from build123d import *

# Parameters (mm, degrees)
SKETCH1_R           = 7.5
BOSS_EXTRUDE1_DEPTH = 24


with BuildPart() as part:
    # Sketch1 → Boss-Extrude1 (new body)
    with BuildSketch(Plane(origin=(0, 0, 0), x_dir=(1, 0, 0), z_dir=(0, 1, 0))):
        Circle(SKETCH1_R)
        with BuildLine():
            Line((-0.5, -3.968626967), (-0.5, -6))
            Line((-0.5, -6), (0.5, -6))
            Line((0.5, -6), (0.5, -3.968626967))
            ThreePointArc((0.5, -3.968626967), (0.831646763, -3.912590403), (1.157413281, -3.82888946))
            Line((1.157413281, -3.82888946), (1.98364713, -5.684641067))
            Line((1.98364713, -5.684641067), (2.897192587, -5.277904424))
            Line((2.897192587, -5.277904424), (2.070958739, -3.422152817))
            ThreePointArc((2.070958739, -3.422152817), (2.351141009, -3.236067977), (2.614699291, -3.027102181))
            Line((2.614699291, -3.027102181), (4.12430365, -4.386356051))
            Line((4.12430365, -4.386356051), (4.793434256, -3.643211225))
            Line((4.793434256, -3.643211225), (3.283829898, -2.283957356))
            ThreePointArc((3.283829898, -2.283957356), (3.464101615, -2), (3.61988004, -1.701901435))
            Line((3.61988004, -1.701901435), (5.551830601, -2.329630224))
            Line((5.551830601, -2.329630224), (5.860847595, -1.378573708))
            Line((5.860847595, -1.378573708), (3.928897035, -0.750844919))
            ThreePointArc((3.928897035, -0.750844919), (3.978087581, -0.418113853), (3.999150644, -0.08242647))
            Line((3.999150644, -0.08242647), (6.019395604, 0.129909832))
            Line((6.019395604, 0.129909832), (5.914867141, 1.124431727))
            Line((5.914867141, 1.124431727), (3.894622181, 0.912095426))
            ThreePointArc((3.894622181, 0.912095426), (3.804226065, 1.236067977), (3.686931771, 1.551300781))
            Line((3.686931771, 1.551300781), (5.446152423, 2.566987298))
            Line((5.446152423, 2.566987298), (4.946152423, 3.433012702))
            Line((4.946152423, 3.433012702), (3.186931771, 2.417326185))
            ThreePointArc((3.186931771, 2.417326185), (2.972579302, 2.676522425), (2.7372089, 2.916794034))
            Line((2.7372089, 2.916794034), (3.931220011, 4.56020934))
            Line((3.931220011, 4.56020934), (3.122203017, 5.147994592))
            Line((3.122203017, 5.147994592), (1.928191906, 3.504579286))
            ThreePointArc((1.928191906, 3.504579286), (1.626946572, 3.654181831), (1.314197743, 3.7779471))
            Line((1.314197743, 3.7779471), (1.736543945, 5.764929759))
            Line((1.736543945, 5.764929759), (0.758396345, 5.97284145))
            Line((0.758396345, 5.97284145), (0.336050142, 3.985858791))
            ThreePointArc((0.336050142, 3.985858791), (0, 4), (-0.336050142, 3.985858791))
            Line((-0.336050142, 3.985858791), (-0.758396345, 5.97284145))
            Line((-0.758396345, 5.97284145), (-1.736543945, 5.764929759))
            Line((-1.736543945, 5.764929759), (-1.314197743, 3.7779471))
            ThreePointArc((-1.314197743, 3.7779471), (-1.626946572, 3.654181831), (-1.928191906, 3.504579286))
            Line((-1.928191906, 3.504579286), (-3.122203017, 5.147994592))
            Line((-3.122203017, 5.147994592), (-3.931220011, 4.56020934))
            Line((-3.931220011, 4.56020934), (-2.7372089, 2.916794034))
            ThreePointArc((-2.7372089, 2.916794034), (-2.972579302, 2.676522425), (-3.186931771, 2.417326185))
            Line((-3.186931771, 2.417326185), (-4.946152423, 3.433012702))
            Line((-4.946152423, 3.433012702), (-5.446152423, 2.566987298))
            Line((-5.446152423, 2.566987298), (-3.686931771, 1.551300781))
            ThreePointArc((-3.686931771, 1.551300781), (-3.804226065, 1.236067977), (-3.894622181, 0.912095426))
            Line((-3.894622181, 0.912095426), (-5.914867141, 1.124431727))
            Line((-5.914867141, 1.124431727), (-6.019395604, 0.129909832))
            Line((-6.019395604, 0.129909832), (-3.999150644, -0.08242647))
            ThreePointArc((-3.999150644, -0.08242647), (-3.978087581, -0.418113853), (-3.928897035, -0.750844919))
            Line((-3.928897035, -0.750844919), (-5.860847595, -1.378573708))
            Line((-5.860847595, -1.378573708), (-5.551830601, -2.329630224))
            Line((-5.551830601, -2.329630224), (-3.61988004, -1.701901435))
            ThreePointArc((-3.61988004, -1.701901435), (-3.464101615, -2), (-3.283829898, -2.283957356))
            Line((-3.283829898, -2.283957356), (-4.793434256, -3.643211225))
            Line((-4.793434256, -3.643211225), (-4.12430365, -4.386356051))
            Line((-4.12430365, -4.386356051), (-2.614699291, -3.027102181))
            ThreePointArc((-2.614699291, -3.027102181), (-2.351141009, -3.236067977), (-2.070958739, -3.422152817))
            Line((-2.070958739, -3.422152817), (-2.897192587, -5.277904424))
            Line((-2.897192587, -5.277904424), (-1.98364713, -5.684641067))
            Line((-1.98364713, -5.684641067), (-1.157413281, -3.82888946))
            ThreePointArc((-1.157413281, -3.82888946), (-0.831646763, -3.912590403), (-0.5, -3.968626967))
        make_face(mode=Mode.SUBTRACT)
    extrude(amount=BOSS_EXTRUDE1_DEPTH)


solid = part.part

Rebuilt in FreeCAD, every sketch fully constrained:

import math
import FreeCAD as App
import Part
import Sketcher
Q = App.Units.Quantity

doc = App.newDocument("Part")
body = doc.addObject("PartDesign::Body", "Body")

# Sketch on XZ plane
sketch1 = body.newObject("Sketcher::SketchObject", "Sketch")
sketch1.AttachmentSupport = (doc.getObject("XZ_Plane"), [""])
sketch1.MapMode = "FlatFace"
sketch1.addGeometry(Part.Circle(App.Vector(0, 0, 0), App.Vector(0, 0, 1), 7.5), False)
sketch1.addGeometry(Part.LineSegment(App.Vector(-0.5, 6, 0), App.Vector(-0.5, 4, 0)), False)
sketch1.addGeometry(Part.ArcOfCircle(Part.Circle(App.Vector(0, 0, 0), App.Vector(0, 0, 1), 4), math.radians(97.18), math.radians(106.82)), False)
sketch1.addGeometry(Part.LineSegment(App.Vector(-1.2, 3.8, 0), App.Vector(-2, 5.7, 0)), False)
sketch1.addGeometry(Part.LineSegment(App.Vector(-2, 5.7, 0), App.Vector(-2.9, 5.3, 0)), False)
sketch1.addGeometry(Part.LineSegment(App.Vector(-2.9, 5.3, 0), App.Vector(-2.1, 3.4, 0)), False)
sketch1.addGeometry(Part.ArcOfCircle(Part.Circle(App.Vector(0, 0, 0), App.Vector(0, 0, 1), 4), math.radians(121.18), math.radians(130.82)), False)
sketch1.addGeometry(Part.LineSegment(App.Vector(-2.6, 3, 0), App.Vector(-4.1, 4.4, 0)), False)
sketch1.addGeometry(Part.LineSegment(App.Vector(-4.1, 4.4, 0), App.Vector(-4.8, 3.6, 0)), False)
sketch1.addGeometry(Part.LineSegment(App.Vector(-4.8, 3.6, 0), App.Vector(-3.3, 2.3, 0)), False)
sketch1.addGeometry(Part.ArcOfCircle(Part.Circle(App.Vector(0, 0, 0), App.Vector(0, 0, 1), 4), math.radians(145.18), math.radians(154.82)), False)
sketch1.addGeometry(Part.LineSegment(App.Vector(-3.6, 1.7, 0), App.Vector(-5.6, 2.3, 0)), False)
sketch1.addGeometry(Part.LineSegment(App.Vector(-5.6, 2.3, 0), App.Vector(-5.9, 1.4, 0)), False)
sketch1.addGeometry(Part.LineSegment(App.Vector(-5.9, 1.4, 0), App.Vector(-3.9, 0.8, 0)), False)
sketch1.addGeometry(Part.ArcOfCircle(Part.Circle(App.Vector(0, 0, 0), App.Vector(0, 0, 1), 4), math.radians(169.18), math.radians(178.82)), False)
sketch1.addGeometry(Part.LineSegment(App.Vector(-4, 0.1, 0), App.Vector(-6, -0.1, 0)), False)
sketch1.addGeometry(Part.LineSegment(App.Vector(-6, -0.1, 0), App.Vector(-5.9, -1.1, 0)), False)
sketch1.addGeometry(Part.LineSegment(App.Vector(-5.9, -1.1, 0), App.Vector(-3.9, -0.9, 0)), False)
sketch1.addGeometry(Part.ArcOfCircle(Part.Circle(App.Vector(0, 0, 0), App.Vector(0, 0, 1), 4), math.radians(-166.82), math.radians(-157.18)), False)
sketch1.addGeometry(Part.LineSegment(App.Vector(-3.7, -1.6, 0), App.Vector(-5.4, -2.6, 0)), False)
sketch1.addGeometry(Part.LineSegment(App.Vector(-5.4, -2.6, 0), App.Vector(-4.9, -3.4, 0)), False)
sketch1.addGeometry(Part.LineSegment(App.Vector(-4.9, -3.4, 0), App.Vector(-3.2, -2.4, 0)), False)
sketch1.addGeometry(Part.ArcOfCircle(Part.Circle(App.Vector(0, 0, 0), App.Vector(0, 0, 1), 4), math.radians(-142.82), math.radians(-133.18)), False)
sketch1.addGeometry(Part.LineSegment(App.Vector(-2.7, -2.9, 0), App.Vector(-3.9, -4.6, 0)), False)
sketch1.addGeometry(Part.LineSegment(App.Vector(-3.9, -4.6, 0), App.Vector(-3.1, -5.1, 0)), False)
sketch1.addGeometry(Part.LineSegment(App.Vector(-3.1, -5.1, 0), App.Vector(-1.9, -3.5, 0)), False)
sketch1.addGeometry(Part.ArcOfCircle(Part.Circle(App.Vector(0, 0, 0), App.Vector(0, 0, 1), 4), math.radians(-118.82), math.radians(-109.18)), False)
sketch1.addGeometry(Part.LineSegment(App.Vector(-1.3, -3.8, 0), App.Vector(-1.7, -5.8, 0)), False)
sketch1.addGeometry(Part.LineSegment(App.Vector(-1.7, -5.8, 0), App.Vector(-0.8, -6, 0)), False)
sketch1.addGeometry(Part.LineSegment(App.Vector(-0.8, -6, 0), App.Vector(-0.3, -4, 0)), False)
sketch1.addGeometry(Part.ArcOfCircle(Part.Circle(App.Vector(0, 0, 0), App.Vector(0, 0, 1), 4), math.radians(-94.82), math.radians(-85.18)), False)
sketch1.addGeometry(Part.LineSegment(App.Vector(0.3, -4, 0), App.Vector(0.8, -6, 0)), False)
sketch1.addGeometry(Part.LineSegment(App.Vector(0.8, -6, 0), App.Vector(1.7, -5.8, 0)), False)
sketch1.addGeometry(Part.LineSegment(App.Vector(1.7, -5.8, 0), App.Vector(1.3, -3.8, 0)), False)
sketch1.addGeometry(Part.ArcOfCircle(Part.Circle(App.Vector(0, 0, 0), App.Vector(0, 0, 1), 4), math.radians(-70.82), math.radians(-61.18)), False)
sketch1.addGeometry(Part.LineSegment(App.Vector(1.9, -3.5, 0), App.Vector(3.1, -5.1, 0)), False)
sketch1.addGeometry(Part.LineSegment(App.Vector(3.1, -5.1, 0), App.Vector(3.9, -4.6, 0)), False)
sketch1.addGeometry(Part.LineSegment(App.Vector(3.9, -4.6, 0), App.Vector(2.7, -2.9, 0)), False)
sketch1.addGeometry(Part.ArcOfCircle(Part.Circle(App.Vector(0, 0, 0), App.Vector(0, 0, 1), 4), math.radians(-46.82), math.radians(-37.18)), False)
sketch1.addGeometry(Part.LineSegment(App.Vector(3.2, -2.4, 0), App.Vector(4.9, -3.4, 0)), False)
sketch1.addGeometry(Part.LineSegment(App.Vector(4.9, -3.4, 0), App.Vector(5.4, -2.6, 0)), False)
sketch1.addGeometry(Part.LineSegment(App.Vector(5.4, -2.6, 0), App.Vector(3.7, -1.6, 0)), False)
sketch1.addGeometry(Part.ArcOfCircle(Part.Circle(App.Vector(0, 0, 0), App.Vector(0, 0, 1), 4), math.radians(-22.82), math.radians(-13.18)), False)
sketch1.addGeometry(Part.LineSegment(App.Vector(3.9, -0.9, 0), App.Vector(5.9, -1.1, 0)), False)
sketch1.addGeometry(Part.LineSegment(App.Vector(5.9, -1.1, 0), App.Vector(6, -0.1, 0)), False)
sketch1.addGeometry(Part.LineSegment(App.Vector(6, -0.1, 0), App.Vector(4, 0.1, 0)), False)
sketch1.addGeometry(Part.ArcOfCircle(Part.Circle(App.Vector(0, 0, 0), App.Vector(0, 0, 1), 4), math.radians(1.18), math.radians(10.82)), False)
sketch1.addGeometry(Part.LineSegment(App.Vector(3.9, 0.8, 0), App.Vector(5.9, 1.4, 0)), False)
sketch1.addGeometry(Part.LineSegment(App.Vector(5.9, 1.4, 0), App.Vector(5.6, 2.3, 0)), False)
sketch1.addGeometry(Part.LineSegment(App.Vector(5.6, 2.3, 0), App.Vector(3.6, 1.7, 0)), False)
sketch1.addGeometry(Part.ArcOfCircle(Part.Circle(App.Vector(0, 0, 0), App.Vector(0, 0, 1), 4), math.radians(25.18), math.radians(34.82)), False)
sketch1.addGeometry(Part.LineSegment(App.Vector(3.3, 2.3, 0), App.Vector(4.8, 3.6, 0)), False)
sketch1.addGeometry(Part.LineSegment(App.Vector(4.8, 3.6, 0), App.Vector(4.1, 4.4, 0)), False)
sketch1.addGeometry(Part.LineSegment(App.Vector(4.1, 4.4, 0), App.Vector(2.6, 3, 0)), False)
sketch1.addGeometry(Part.ArcOfCircle(Part.Circle(App.Vector(0, 0, 0), App.Vector(0, 0, 1), 4), math.radians(49.18), math.radians(58.82)), False)
sketch1.addGeometry(Part.LineSegment(App.Vector(2.1, 3.4, 0), App.Vector(2.9, 5.3, 0)), False)
sketch1.addGeometry(Part.LineSegment(App.Vector(2.9, 5.3, 0), App.Vector(2, 5.7, 0)), False)
sketch1.addGeometry(Part.LineSegment(App.Vector(2, 5.7, 0), App.Vector(1.2, 3.8, 0)), False)
sketch1.addGeometry(Part.ArcOfCircle(Part.Circle(App.Vector(0, 0, 0), App.Vector(0, 0, 1), 4), math.radians(73.18), math.radians(82.82)), False)
sketch1.addGeometry(Part.LineSegment(App.Vector(0.5, 4, 0), App.Vector(0.5, 6, 0)), False)
sketch1.addGeometry(Part.LineSegment(App.Vector(0.5, 6, 0), App.Vector(-0.5, 6, 0)), False)
sketch1.addConstraint(Sketcher.Constraint("Coincident", 1, 2, 2, 1))
sketch1.addConstraint(Sketcher.Constraint("Coincident", 2, 2, 3, 1))
sketch1.addConstraint(Sketcher.Constraint("Coincident", 3, 2, 4, 1))
sketch1.addConstraint(Sketcher.Constraint("Coincident", 4, 2, 5, 1))
sketch1.addConstraint(Sketcher.Constraint("Coincident", 5, 2, 6, 1))
sketch1.addConstraint(Sketcher.Constraint("Coincident", 6, 2, 7, 1))
sketch1.addConstraint(Sketcher.Constraint("Coincident", 7, 2, 8, 1))
sketch1.addConstraint(Sketcher.Constraint("Coincident", 8, 2, 9, 1))
sketch1.addConstraint(Sketcher.Constraint("Coincident", 9, 2, 10, 1))
sketch1.addConstraint(Sketcher.Constraint("Coincident", 10, 2, 11, 1))
sketch1.addConstraint(Sketcher.Constraint("Coincident", 11, 2, 12, 1))
sketch1.addConstraint(Sketcher.Constraint("Coincident", 12, 2, 13, 1))
sketch1.addConstraint(Sketcher.Constraint("Coincident", 13, 2, 14, 1))
sketch1.addConstraint(Sketcher.Constraint("Coincident", 14, 2, 15, 1))
sketch1.addConstraint(Sketcher.Constraint("Coincident", 15, 2, 16, 1))
sketch1.addConstraint(Sketcher.Constraint("Coincident", 16, 2, 17, 1))
sketch1.addConstraint(Sketcher.Constraint("Coincident", 17, 2, 18, 1))
sketch1.addConstraint(Sketcher.Constraint("Coincident", 18, 2, 19, 1))
sketch1.addConstraint(Sketcher.Constraint("Coincident", 19, 2, 20, 1))
sketch1.addConstraint(Sketcher.Constraint("Coincident", 20, 2, 21, 1))
sketch1.addConstraint(Sketcher.Constraint("Coincident", 21, 2, 22, 1))
sketch1.addConstraint(Sketcher.Constraint("Coincident", 22, 2, 23, 1))
sketch1.addConstraint(Sketcher.Constraint("Coincident", 23, 2, 24, 1))
sketch1.addConstraint(Sketcher.Constraint("Coincident", 24, 2, 25, 1))
sketch1.addConstraint(Sketcher.Constraint("Coincident", 25, 2, 26, 1))
sketch1.addConstraint(Sketcher.Constraint("Coincident", 26, 2, 27, 1))
sketch1.addConstraint(Sketcher.Constraint("Coincident", 27, 2, 28, 1))
sketch1.addConstraint(Sketcher.Constraint("Coincident", 28, 2, 29, 1))
sketch1.addConstraint(Sketcher.Constraint("Coincident", 29, 2, 30, 1))
sketch1.addConstraint(Sketcher.Constraint("Coincident", 30, 2, 31, 1))
sketch1.addConstraint(Sketcher.Constraint("Coincident", 31, 2, 32, 1))
sketch1.addConstraint(Sketcher.Constraint("Coincident", 32, 2, 33, 1))
sketch1.addConstraint(Sketcher.Constraint("Coincident", 33, 2, 34, 1))
sketch1.addConstraint(Sketcher.Constraint("Coincident", 34, 2, 35, 1))
sketch1.addConstraint(Sketcher.Constraint("Coincident", 35, 2, 36, 1))
sketch1.addConstraint(Sketcher.Constraint("Coincident", 36, 2, 37, 1))
sketch1.addConstraint(Sketcher.Constraint("Coincident", 37, 2, 38, 1))
sketch1.addConstraint(Sketcher.Constraint("Coincident", 38, 2, 39, 1))
sketch1.addConstraint(Sketcher.Constraint("Coincident", 39, 2, 40, 1))
sketch1.addConstraint(Sketcher.Constraint("Coincident", 40, 2, 41, 1))
sketch1.addConstraint(Sketcher.Constraint("Coincident", 41, 2, 42, 1))
sketch1.addConstraint(Sketcher.Constraint("Coincident", 42, 2, 43, 1))
sketch1.addConstraint(Sketcher.Constraint("Coincident", 43, 2, 44, 1))
sketch1.addConstraint(Sketcher.Constraint("Coincident", 44, 2, 45, 1))
sketch1.addConstraint(Sketcher.Constraint("Coincident", 45, 2, 46, 1))
sketch1.addConstraint(Sketcher.Constraint("Coincident", 46, 2, 47, 1))
sketch1.addConstraint(Sketcher.Constraint("Coincident", 47, 2, 48, 1))
sketch1.addConstraint(Sketcher.Constraint("Coincident", 48, 2, 49, 1))
sketch1.addConstraint(Sketcher.Constraint("Coincident", 49, 2, 50, 1))
sketch1.addConstraint(Sketcher.Constraint("Coincident", 50, 2, 51, 1))
sketch1.addConstraint(Sketcher.Constraint("Coincident", 51, 2, 52, 1))
sketch1.addConstraint(Sketcher.Constraint("Coincident", 52, 2, 53, 1))
sketch1.addConstraint(Sketcher.Constraint("Coincident", 53, 2, 54, 1))
sketch1.addConstraint(Sketcher.Constraint("Coincident", 54, 2, 55, 1))
sketch1.addConstraint(Sketcher.Constraint("Coincident", 55, 2, 56, 1))
sketch1.addConstraint(Sketcher.Constraint("Coincident", 56, 2, 57, 1))
sketch1.addConstraint(Sketcher.Constraint("Coincident", 57, 2, 58, 1))
sketch1.addConstraint(Sketcher.Constraint("Coincident", 58, 2, 59, 1))
sketch1.addConstraint(Sketcher.Constraint("Coincident", 59, 2, 60, 1))
sketch1.addConstraint(Sketcher.Constraint("Coincident", 60, 2, 1, 1))
sketch1.addConstraint(Sketcher.Constraint("Vertical", 1))
sketch1.addConstraint(Sketcher.Constraint("Vertical", 59))
sketch1.addConstraint(Sketcher.Constraint("Horizontal", 60))
sketch1.addConstraint(Sketcher.Constraint("Coincident", 0, 3, -1, 1))
sketch1.addConstraint(Sketcher.Constraint("Coincident", 2, 3, -1, 1))
sketch1.addConstraint(Sketcher.Constraint("Coincident", 6, 3, -1, 1))
sketch1.addConstraint(Sketcher.Constraint("Coincident", 10, 3, -1, 1))
sketch1.addConstraint(Sketcher.Constraint("Coincident", 14, 3, -1, 1))
sketch1.addConstraint(Sketcher.Constraint("Coincident", 18, 3, -1, 1))
sketch1.addConstraint(Sketcher.Constraint("Coincident", 22, 3, -1, 1))
sketch1.addConstraint(Sketcher.Constraint("Coincident", 26, 3, -1, 1))
sketch1.addConstraint(Sketcher.Constraint("Coincident", 30, 3, -1, 1))
sketch1.addConstraint(Sketcher.Constraint("Coincident", 34, 3, -1, 1))
sketch1.addConstraint(Sketcher.Constraint("Coincident", 38, 3, -1, 1))
sketch1.addConstraint(Sketcher.Constraint("Coincident", 42, 3, -1, 1))
sketch1.addConstraint(Sketcher.Constraint("Coincident", 46, 3, -1, 1))
sketch1.addConstraint(Sketcher.Constraint("Coincident", 50, 3, -1, 1))
sketch1.addConstraint(Sketcher.Constraint("Coincident", 54, 3, -1, 1))
sketch1.addConstraint(Sketcher.Constraint("Coincident", 58, 3, -1, 1))
sketch1.addConstraint(Sketcher.Constraint("Equal", 2, 6))
sketch1.addConstraint(Sketcher.Constraint("Equal", 6, 10))
sketch1.addConstraint(Sketcher.Constraint("Equal", 10, 14))
sketch1.addConstraint(Sketcher.Constraint("Equal", 14, 18))
sketch1.addConstraint(Sketcher.Constraint("Equal", 18, 22))
sketch1.addConstraint(Sketcher.Constraint("Equal", 22, 26))
sketch1.addConstraint(Sketcher.Constraint("Equal", 26, 30))
sketch1.addConstraint(Sketcher.Constraint("Equal", 30, 34))
sketch1.addConstraint(Sketcher.Constraint("Equal", 34, 38))
sketch1.addConstraint(Sketcher.Constraint("Equal", 38, 42))
sketch1.addConstraint(Sketcher.Constraint("Equal", 42, 46))
sketch1.addConstraint(Sketcher.Constraint("Equal", 46, 50))
sketch1.addConstraint(Sketcher.Constraint("Equal", 50, 54))
sketch1.addConstraint(Sketcher.Constraint("Equal", 54, 58))
sketch1.addConstraint(Sketcher.Constraint("Symmetric", 28, 2, 31, 2, -2))
sketch1.addConstraint(Sketcher.Constraint("Symmetric", 27, 2, 32, 2, -2))
sketch1.addConstraint(Sketcher.Constraint("Symmetric", 24, 2, 35, 2, -2))
sketch1.addConstraint(Sketcher.Constraint("Symmetric", 23, 2, 36, 2, -2))
sketch1.addConstraint(Sketcher.Constraint("Symmetric", 20, 2, 39, 2, -2))
sketch1.addConstraint(Sketcher.Constraint("Symmetric", 19, 2, 40, 2, -2))
sketch1.addConstraint(Sketcher.Constraint("Symmetric", 16, 2, 43, 2, -2))
sketch1.addConstraint(Sketcher.Constraint("Symmetric", 15, 2, 44, 2, -2))
sketch1.addConstraint(Sketcher.Constraint("Symmetric", 12, 2, 47, 2, -2))
sketch1.addConstraint(Sketcher.Constraint("Symmetric", 11, 2, 48, 2, -2))
sketch1.addConstraint(Sketcher.Constraint("Symmetric", 8, 2, 51, 2, -2))
sketch1.addConstraint(Sketcher.Constraint("Symmetric", 7, 2, 52, 2, -2))
sketch1.addConstraint(Sketcher.Constraint("Symmetric", 4, 2, 55, 2, -2))
sketch1.addConstraint(Sketcher.Constraint("Symmetric", 3, 2, 56, 2, -2))
sketch1.addConstraint(Sketcher.Constraint("Perpendicular", 3, 4))
sketch1.addConstraint(Sketcher.Constraint("Perpendicular", 4, 5))
sketch1.addConstraint(Sketcher.Constraint("Perpendicular", 7, 8))
sketch1.addConstraint(Sketcher.Constraint("Perpendicular", 8, 9))
sketch1.addConstraint(Sketcher.Constraint("Perpendicular", 11, 12))
sketch1.addConstraint(Sketcher.Constraint("Perpendicular", 12, 13))
sketch1.addConstraint(Sketcher.Constraint("Perpendicular", 15, 16))
sketch1.addConstraint(Sketcher.Constraint("Perpendicular", 16, 17))
sketch1.addConstraint(Sketcher.Constraint("Perpendicular", 19, 20))
sketch1.addConstraint(Sketcher.Constraint("Perpendicular", 20, 21))
sketch1.addConstraint(Sketcher.Constraint("Perpendicular", 23, 24))
sketch1.addConstraint(Sketcher.Constraint("Perpendicular", 24, 25))
sketch1.addConstraint(Sketcher.Constraint("Perpendicular", 27, 28))
sketch1.addConstraint(Sketcher.Constraint("Perpendicular", 28, 29))
sketch1.addConstraint(Sketcher.Constraint("Perpendicular", 31, 32))
sketch1.addConstraint(Sketcher.Constraint("Perpendicular", 32, 33))
sketch1.addConstraint(Sketcher.Constraint("Perpendicular", 35, 36))
sketch1.addConstraint(Sketcher.Constraint("Perpendicular", 36, 37))
sketch1.addConstraint(Sketcher.Constraint("Perpendicular", 39, 40))
sketch1.addConstraint(Sketcher.Constraint("Perpendicular", 40, 41))
sketch1.addConstraint(Sketcher.Constraint("Perpendicular", 43, 44))
sketch1.addConstraint(Sketcher.Constraint("Perpendicular", 44, 45))
sketch1.addConstraint(Sketcher.Constraint("Perpendicular", 47, 48))
sketch1.addConstraint(Sketcher.Constraint("Perpendicular", 48, 49))
sketch1.addConstraint(Sketcher.Constraint("Perpendicular", 51, 52))
sketch1.addConstraint(Sketcher.Constraint("Perpendicular", 52, 53))
sketch1.addConstraint(Sketcher.Constraint("Perpendicular", 55, 56))
sketch1.addConstraint(Sketcher.Constraint("Perpendicular", 56, 57))
sketch1.addConstraint(Sketcher.Constraint("Horizontal", 1, 2, 58, 2))
sketch1.addConstraint(Sketcher.Constraint("Equal", 3, 5))
sketch1.addConstraint(Sketcher.Constraint("Equal", 5, 7))
sketch1.addConstraint(Sketcher.Constraint("Equal", 4, 8))
sketch1.addConstraint(Sketcher.Constraint("Equal", 7, 9))
sketch1.addConstraint(Sketcher.Constraint("Equal", 9, 11))
sketch1.addConstraint(Sketcher.Constraint("Equal", 8, 12))
sketch1.addConstraint(Sketcher.Constraint("Equal", 11, 13))
sketch1.addConstraint(Sketcher.Constraint("Equal", 13, 15))
sketch1.addConstraint(Sketcher.Constraint("Equal", 12, 16))
sketch1.addConstraint(Sketcher.Constraint("Equal", 15, 17))
sketch1.addConstraint(Sketcher.Constraint("Equal", 17, 19))
sketch1.addConstraint(Sketcher.Constraint("Equal", 16, 20))
sketch1.addConstraint(Sketcher.Constraint("Equal", 19, 21))
sketch1.addConstraint(Sketcher.Constraint("Equal", 21, 23))
sketch1.addConstraint(Sketcher.Constraint("Equal", 20, 24))
sketch1.addConstraint(Sketcher.Constraint("Equal", 23, 25))
sketch1.addConstraint(Sketcher.Constraint("Equal", 25, 27))
sketch1.addConstraint(Sketcher.Constraint("Equal", 24, 28))
sketch1.addConstraint(Sketcher.Constraint("Equal", 27, 29))
sketch1.addConstraint(Sketcher.Constraint("Diameter", 0, Q("15 mm")))
sketch1.addConstraint(Sketcher.Constraint("Radius", 2, Q("4 mm")))
sketch1.addConstraint(Sketcher.Constraint("DistanceX", 60, 2, 60, 1, Q("1 mm")))
sketch1.addConstraint(Sketcher.Constraint("Angle", 3, Q("114 deg")))
sketch1.addConstraint(Sketcher.Constraint("Angle", 7, Q("138 deg")))
sketch1.addConstraint(Sketcher.Constraint("Angle", 11, Q("162 deg")))
sketch1.addConstraint(Sketcher.Constraint("Angle", 15, Q("-174 deg")))
sketch1.addConstraint(Sketcher.Constraint("Angle", 19, Q("-150 deg")))
sketch1.addConstraint(Sketcher.Constraint("Angle", 23, Q("-126 deg")))
sketch1.addConstraint(Sketcher.Constraint("Angle", 27, Q("-102 deg")))
sketch1.addConstraint(Sketcher.Constraint("Distance", 4, Q("1 mm")))
sketch1.addConstraint(Sketcher.Constraint("DistanceY", -1, 1, 59, 2, Q("6 mm")))
sketch1.addConstraint(Sketcher.Constraint("DistanceY", -1, 1, 3, 2, Q("5.684641 mm")))
pad1 = body.newObject("PartDesign::Pad", "Pad")
pad1.Profile = sketch1
pad1.Length = 24
pad1.Reversed = True

doc.recompute()
